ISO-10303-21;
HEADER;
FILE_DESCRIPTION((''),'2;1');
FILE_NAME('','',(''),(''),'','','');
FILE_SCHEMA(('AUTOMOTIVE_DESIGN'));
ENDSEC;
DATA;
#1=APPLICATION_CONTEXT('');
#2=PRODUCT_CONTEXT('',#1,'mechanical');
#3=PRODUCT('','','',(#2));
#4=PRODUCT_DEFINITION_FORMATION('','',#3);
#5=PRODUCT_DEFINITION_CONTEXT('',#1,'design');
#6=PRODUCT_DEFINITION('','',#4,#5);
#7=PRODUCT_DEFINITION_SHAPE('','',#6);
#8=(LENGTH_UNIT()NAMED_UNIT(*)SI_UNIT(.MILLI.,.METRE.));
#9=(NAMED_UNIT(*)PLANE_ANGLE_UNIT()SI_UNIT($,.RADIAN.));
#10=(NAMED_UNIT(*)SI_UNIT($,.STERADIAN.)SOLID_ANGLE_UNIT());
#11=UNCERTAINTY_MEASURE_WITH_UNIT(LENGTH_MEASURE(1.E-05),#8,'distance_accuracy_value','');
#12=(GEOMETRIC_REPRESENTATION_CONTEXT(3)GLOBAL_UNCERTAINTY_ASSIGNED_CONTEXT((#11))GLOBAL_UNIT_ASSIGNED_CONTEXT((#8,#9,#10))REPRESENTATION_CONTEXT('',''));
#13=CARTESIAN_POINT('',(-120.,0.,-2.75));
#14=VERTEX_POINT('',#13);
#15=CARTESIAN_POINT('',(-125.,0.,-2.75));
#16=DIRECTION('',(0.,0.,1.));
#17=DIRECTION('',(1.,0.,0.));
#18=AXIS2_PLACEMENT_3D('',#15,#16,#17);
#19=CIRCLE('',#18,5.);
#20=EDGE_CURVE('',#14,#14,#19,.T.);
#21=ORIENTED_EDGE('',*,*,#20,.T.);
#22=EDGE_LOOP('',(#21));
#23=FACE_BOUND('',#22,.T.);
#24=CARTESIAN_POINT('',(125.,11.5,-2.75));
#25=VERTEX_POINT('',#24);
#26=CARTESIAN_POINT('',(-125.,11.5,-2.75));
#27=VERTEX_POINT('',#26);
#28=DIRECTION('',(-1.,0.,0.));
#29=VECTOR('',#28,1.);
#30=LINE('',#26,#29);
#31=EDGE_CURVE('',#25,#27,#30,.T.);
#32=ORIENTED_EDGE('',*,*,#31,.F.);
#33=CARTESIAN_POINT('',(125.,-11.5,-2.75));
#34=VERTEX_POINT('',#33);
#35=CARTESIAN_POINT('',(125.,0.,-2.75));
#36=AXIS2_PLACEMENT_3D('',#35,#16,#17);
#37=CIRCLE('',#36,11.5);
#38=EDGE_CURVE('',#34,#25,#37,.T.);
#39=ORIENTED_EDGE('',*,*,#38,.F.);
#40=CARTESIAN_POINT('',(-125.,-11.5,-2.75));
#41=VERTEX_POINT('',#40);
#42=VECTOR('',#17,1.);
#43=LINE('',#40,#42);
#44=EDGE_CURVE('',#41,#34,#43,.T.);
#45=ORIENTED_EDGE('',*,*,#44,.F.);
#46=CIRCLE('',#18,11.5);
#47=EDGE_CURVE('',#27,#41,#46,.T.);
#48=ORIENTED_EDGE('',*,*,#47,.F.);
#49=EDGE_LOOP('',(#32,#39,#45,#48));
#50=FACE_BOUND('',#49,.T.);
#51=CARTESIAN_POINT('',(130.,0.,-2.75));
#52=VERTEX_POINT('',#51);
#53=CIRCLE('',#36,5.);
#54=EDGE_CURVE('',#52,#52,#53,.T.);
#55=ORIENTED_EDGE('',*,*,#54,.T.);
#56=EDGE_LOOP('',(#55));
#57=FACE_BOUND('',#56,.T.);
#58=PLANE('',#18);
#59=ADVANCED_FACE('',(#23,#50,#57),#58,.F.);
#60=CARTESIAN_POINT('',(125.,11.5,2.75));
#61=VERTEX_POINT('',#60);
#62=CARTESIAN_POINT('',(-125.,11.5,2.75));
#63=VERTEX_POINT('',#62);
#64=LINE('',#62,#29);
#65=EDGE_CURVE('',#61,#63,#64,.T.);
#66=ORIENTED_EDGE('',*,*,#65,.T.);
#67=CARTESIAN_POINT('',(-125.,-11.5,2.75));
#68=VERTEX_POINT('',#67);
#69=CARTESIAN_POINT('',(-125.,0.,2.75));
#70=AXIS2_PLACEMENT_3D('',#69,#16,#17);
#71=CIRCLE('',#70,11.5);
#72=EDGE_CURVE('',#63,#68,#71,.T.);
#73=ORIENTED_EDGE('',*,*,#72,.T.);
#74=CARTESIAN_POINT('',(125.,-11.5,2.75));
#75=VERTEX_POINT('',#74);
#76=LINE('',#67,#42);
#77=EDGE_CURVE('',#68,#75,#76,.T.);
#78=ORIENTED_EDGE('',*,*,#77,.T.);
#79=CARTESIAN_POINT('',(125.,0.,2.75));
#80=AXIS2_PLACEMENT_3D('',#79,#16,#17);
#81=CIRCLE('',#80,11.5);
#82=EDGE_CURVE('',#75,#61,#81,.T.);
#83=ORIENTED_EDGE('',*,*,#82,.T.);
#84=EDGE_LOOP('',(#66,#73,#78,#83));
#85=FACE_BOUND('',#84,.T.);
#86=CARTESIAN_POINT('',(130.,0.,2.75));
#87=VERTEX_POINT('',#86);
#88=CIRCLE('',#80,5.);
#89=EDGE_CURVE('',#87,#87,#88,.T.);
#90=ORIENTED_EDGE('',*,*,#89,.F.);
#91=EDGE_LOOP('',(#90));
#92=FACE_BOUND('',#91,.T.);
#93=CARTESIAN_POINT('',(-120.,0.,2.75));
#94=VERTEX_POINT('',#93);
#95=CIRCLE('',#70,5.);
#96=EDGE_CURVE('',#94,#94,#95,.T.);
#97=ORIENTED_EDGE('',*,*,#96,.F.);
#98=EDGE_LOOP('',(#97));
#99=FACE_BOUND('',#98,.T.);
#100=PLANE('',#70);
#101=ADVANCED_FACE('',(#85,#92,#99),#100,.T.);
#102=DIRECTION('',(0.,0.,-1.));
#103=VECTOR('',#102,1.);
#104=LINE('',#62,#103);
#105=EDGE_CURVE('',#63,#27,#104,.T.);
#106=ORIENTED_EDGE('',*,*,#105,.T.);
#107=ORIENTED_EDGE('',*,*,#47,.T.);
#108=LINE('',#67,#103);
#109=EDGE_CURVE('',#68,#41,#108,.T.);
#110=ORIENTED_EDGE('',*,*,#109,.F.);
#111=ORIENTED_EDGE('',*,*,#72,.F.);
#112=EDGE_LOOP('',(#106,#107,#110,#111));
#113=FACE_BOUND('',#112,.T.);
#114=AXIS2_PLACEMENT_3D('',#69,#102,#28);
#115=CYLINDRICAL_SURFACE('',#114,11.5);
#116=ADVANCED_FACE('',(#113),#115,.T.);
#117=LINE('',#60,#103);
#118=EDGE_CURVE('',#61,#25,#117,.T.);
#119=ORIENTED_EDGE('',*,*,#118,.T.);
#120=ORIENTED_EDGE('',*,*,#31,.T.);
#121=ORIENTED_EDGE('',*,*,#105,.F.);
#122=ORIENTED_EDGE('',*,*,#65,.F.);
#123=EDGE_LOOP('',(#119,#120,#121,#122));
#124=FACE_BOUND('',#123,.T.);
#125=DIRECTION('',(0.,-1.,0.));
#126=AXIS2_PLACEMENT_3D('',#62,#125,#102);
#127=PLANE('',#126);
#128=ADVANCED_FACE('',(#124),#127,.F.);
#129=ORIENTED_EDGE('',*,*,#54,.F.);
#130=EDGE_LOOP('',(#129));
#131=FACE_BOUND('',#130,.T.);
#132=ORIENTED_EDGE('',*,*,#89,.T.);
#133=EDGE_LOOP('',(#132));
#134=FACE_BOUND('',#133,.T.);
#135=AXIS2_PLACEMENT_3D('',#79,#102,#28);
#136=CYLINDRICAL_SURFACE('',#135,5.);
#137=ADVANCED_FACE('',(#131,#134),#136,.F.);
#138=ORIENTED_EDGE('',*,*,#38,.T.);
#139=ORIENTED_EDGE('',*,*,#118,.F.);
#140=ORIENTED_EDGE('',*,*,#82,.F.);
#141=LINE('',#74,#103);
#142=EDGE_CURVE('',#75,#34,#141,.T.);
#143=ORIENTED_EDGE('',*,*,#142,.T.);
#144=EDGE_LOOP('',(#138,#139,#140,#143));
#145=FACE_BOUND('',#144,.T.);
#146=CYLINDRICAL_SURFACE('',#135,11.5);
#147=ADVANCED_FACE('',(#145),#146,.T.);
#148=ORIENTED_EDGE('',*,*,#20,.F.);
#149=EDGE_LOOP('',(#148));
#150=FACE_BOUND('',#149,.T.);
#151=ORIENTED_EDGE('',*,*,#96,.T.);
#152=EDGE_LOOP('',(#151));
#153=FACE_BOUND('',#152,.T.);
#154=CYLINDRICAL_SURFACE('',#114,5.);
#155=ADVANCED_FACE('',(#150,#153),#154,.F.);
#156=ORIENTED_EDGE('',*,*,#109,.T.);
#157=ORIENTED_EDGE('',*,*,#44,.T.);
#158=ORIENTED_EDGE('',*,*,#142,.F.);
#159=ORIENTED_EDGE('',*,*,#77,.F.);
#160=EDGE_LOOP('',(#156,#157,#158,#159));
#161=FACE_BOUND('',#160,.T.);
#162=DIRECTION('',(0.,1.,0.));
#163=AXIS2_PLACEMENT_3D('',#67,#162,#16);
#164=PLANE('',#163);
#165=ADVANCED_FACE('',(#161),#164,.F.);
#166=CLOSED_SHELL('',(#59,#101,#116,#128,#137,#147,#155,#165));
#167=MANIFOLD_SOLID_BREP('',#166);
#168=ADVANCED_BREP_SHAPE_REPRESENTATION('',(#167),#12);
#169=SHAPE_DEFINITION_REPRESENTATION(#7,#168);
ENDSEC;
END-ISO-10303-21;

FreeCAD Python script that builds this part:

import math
import FreeCAD as App
import Part
import Sketcher

doc = App.newDocument("Part")
params = doc.addObject("Spreadsheet::Sheet", "Params")
for row, (alias, value) in enumerate([
    ("sketch1_diameter", "10 mm"),
    ("sketch1_radius", "11.5 mm"),
    ("sketch1_width", "250 mm"),
    ("pad1_length", "5.5 mm"),
], start=1):
    params.set(f"A{row}", alias)
    params.set(f"B{row}", "=" + value)
    params.setAlias(f"B{row}", alias)

body = doc.addObject("PartDesign::Body", "Body")

# Sketch on XY plane
sketch1 = doc.addObject("Sketcher::SketchObject", "Sketch")
body.addObject(sketch1)
sketch1.AttachmentSupport = (doc.XY_Plane, [""])
sketch1.MapMode = "FlatFace"
sketch1.addGeometry(Part.LineSegment(App.Vector(125, 12, 0), App.Vector(-125, 12, 0)), False)
sketch1.addGeometry(Part.ArcOfCircle(Part.Circle(App.Vector(-125, 0, 0), App.Vector(0, 0, 1), 12), math.radians(90), math.radians(270)), False)
sketch1.addGeometry(Part.LineSegment(App.Vector(-125, -12, 0), App.Vector(125, -12, 0)), False)
sketch1.addGeometry(Part.ArcOfCircle(Part.Circle(App.Vector(125, 0, 0), App.Vector(0, 0, 1), 12), math.radians(-90), math.radians(90)), False)
sketch1.addGeometry(Part.Circle(App.Vector(125, 0, 0), App.Vector(0, 0, 1), 5), False)
sketch1.addGeometry(Part.Circle(App.Vector(-125, 0, 0), App.Vector(0, 0, 1), 5), False)
sketch1.addConstraint(Sketcher.Constraint("Tangent", 0, 2, 1, 1))
sketch1.addConstraint(Sketcher.Constraint("Tangent", 1, 2, 2, 1))
sketch1.addConstraint(Sketcher.Constraint("Tangent", 2, 2, 3, 1))
sketch1.addConstraint(Sketcher.Constraint("Tangent", 3, 2, 0, 1))
sketch1.addConstraint(Sketcher.Constraint("Horizontal", 0))
sketch1.addConstraint(Sketcher.Constraint("Horizontal", 2))
sketch1.addConstraint(Sketcher.Constraint("Coincident", 4, 3, 3, 3))
sketch1.addConstraint(Sketcher.Constraint("Coincident", 5, 3, 1, 3))
sketch1.addConstraint(Sketcher.Constraint("Equal", 4, 5))
sketch1.addConstraint(Sketcher.Constraint("Symmetric", 1, 3, 3, 3, -1, 1))
sketch1.addConstraint(Sketcher.Constraint("Diameter", 4, 10.0))
sketch1.addConstraint(Sketcher.Constraint("Radius", 1, 11.5))
sketch1.addConstraint(Sketcher.Constraint("DistanceX", 0, 2, 0, 1, 250.0))
sketch1.setExpression("Constraints[10]", "Params.sketch1_diameter")
sketch1.setExpression("Constraints[11]", "Params.sketch1_radius")
sketch1.setExpression("Constraints[12]", "Params.sketch1_width")
pad1 = doc.addObject("PartDesign::Pad", "Pad")
body.addObject(pad1)
pad1.Profile = sketch1
pad1.setExpression("Length", "Params.pad1_length")
pad1.Midplane = True

doc.recompute()
